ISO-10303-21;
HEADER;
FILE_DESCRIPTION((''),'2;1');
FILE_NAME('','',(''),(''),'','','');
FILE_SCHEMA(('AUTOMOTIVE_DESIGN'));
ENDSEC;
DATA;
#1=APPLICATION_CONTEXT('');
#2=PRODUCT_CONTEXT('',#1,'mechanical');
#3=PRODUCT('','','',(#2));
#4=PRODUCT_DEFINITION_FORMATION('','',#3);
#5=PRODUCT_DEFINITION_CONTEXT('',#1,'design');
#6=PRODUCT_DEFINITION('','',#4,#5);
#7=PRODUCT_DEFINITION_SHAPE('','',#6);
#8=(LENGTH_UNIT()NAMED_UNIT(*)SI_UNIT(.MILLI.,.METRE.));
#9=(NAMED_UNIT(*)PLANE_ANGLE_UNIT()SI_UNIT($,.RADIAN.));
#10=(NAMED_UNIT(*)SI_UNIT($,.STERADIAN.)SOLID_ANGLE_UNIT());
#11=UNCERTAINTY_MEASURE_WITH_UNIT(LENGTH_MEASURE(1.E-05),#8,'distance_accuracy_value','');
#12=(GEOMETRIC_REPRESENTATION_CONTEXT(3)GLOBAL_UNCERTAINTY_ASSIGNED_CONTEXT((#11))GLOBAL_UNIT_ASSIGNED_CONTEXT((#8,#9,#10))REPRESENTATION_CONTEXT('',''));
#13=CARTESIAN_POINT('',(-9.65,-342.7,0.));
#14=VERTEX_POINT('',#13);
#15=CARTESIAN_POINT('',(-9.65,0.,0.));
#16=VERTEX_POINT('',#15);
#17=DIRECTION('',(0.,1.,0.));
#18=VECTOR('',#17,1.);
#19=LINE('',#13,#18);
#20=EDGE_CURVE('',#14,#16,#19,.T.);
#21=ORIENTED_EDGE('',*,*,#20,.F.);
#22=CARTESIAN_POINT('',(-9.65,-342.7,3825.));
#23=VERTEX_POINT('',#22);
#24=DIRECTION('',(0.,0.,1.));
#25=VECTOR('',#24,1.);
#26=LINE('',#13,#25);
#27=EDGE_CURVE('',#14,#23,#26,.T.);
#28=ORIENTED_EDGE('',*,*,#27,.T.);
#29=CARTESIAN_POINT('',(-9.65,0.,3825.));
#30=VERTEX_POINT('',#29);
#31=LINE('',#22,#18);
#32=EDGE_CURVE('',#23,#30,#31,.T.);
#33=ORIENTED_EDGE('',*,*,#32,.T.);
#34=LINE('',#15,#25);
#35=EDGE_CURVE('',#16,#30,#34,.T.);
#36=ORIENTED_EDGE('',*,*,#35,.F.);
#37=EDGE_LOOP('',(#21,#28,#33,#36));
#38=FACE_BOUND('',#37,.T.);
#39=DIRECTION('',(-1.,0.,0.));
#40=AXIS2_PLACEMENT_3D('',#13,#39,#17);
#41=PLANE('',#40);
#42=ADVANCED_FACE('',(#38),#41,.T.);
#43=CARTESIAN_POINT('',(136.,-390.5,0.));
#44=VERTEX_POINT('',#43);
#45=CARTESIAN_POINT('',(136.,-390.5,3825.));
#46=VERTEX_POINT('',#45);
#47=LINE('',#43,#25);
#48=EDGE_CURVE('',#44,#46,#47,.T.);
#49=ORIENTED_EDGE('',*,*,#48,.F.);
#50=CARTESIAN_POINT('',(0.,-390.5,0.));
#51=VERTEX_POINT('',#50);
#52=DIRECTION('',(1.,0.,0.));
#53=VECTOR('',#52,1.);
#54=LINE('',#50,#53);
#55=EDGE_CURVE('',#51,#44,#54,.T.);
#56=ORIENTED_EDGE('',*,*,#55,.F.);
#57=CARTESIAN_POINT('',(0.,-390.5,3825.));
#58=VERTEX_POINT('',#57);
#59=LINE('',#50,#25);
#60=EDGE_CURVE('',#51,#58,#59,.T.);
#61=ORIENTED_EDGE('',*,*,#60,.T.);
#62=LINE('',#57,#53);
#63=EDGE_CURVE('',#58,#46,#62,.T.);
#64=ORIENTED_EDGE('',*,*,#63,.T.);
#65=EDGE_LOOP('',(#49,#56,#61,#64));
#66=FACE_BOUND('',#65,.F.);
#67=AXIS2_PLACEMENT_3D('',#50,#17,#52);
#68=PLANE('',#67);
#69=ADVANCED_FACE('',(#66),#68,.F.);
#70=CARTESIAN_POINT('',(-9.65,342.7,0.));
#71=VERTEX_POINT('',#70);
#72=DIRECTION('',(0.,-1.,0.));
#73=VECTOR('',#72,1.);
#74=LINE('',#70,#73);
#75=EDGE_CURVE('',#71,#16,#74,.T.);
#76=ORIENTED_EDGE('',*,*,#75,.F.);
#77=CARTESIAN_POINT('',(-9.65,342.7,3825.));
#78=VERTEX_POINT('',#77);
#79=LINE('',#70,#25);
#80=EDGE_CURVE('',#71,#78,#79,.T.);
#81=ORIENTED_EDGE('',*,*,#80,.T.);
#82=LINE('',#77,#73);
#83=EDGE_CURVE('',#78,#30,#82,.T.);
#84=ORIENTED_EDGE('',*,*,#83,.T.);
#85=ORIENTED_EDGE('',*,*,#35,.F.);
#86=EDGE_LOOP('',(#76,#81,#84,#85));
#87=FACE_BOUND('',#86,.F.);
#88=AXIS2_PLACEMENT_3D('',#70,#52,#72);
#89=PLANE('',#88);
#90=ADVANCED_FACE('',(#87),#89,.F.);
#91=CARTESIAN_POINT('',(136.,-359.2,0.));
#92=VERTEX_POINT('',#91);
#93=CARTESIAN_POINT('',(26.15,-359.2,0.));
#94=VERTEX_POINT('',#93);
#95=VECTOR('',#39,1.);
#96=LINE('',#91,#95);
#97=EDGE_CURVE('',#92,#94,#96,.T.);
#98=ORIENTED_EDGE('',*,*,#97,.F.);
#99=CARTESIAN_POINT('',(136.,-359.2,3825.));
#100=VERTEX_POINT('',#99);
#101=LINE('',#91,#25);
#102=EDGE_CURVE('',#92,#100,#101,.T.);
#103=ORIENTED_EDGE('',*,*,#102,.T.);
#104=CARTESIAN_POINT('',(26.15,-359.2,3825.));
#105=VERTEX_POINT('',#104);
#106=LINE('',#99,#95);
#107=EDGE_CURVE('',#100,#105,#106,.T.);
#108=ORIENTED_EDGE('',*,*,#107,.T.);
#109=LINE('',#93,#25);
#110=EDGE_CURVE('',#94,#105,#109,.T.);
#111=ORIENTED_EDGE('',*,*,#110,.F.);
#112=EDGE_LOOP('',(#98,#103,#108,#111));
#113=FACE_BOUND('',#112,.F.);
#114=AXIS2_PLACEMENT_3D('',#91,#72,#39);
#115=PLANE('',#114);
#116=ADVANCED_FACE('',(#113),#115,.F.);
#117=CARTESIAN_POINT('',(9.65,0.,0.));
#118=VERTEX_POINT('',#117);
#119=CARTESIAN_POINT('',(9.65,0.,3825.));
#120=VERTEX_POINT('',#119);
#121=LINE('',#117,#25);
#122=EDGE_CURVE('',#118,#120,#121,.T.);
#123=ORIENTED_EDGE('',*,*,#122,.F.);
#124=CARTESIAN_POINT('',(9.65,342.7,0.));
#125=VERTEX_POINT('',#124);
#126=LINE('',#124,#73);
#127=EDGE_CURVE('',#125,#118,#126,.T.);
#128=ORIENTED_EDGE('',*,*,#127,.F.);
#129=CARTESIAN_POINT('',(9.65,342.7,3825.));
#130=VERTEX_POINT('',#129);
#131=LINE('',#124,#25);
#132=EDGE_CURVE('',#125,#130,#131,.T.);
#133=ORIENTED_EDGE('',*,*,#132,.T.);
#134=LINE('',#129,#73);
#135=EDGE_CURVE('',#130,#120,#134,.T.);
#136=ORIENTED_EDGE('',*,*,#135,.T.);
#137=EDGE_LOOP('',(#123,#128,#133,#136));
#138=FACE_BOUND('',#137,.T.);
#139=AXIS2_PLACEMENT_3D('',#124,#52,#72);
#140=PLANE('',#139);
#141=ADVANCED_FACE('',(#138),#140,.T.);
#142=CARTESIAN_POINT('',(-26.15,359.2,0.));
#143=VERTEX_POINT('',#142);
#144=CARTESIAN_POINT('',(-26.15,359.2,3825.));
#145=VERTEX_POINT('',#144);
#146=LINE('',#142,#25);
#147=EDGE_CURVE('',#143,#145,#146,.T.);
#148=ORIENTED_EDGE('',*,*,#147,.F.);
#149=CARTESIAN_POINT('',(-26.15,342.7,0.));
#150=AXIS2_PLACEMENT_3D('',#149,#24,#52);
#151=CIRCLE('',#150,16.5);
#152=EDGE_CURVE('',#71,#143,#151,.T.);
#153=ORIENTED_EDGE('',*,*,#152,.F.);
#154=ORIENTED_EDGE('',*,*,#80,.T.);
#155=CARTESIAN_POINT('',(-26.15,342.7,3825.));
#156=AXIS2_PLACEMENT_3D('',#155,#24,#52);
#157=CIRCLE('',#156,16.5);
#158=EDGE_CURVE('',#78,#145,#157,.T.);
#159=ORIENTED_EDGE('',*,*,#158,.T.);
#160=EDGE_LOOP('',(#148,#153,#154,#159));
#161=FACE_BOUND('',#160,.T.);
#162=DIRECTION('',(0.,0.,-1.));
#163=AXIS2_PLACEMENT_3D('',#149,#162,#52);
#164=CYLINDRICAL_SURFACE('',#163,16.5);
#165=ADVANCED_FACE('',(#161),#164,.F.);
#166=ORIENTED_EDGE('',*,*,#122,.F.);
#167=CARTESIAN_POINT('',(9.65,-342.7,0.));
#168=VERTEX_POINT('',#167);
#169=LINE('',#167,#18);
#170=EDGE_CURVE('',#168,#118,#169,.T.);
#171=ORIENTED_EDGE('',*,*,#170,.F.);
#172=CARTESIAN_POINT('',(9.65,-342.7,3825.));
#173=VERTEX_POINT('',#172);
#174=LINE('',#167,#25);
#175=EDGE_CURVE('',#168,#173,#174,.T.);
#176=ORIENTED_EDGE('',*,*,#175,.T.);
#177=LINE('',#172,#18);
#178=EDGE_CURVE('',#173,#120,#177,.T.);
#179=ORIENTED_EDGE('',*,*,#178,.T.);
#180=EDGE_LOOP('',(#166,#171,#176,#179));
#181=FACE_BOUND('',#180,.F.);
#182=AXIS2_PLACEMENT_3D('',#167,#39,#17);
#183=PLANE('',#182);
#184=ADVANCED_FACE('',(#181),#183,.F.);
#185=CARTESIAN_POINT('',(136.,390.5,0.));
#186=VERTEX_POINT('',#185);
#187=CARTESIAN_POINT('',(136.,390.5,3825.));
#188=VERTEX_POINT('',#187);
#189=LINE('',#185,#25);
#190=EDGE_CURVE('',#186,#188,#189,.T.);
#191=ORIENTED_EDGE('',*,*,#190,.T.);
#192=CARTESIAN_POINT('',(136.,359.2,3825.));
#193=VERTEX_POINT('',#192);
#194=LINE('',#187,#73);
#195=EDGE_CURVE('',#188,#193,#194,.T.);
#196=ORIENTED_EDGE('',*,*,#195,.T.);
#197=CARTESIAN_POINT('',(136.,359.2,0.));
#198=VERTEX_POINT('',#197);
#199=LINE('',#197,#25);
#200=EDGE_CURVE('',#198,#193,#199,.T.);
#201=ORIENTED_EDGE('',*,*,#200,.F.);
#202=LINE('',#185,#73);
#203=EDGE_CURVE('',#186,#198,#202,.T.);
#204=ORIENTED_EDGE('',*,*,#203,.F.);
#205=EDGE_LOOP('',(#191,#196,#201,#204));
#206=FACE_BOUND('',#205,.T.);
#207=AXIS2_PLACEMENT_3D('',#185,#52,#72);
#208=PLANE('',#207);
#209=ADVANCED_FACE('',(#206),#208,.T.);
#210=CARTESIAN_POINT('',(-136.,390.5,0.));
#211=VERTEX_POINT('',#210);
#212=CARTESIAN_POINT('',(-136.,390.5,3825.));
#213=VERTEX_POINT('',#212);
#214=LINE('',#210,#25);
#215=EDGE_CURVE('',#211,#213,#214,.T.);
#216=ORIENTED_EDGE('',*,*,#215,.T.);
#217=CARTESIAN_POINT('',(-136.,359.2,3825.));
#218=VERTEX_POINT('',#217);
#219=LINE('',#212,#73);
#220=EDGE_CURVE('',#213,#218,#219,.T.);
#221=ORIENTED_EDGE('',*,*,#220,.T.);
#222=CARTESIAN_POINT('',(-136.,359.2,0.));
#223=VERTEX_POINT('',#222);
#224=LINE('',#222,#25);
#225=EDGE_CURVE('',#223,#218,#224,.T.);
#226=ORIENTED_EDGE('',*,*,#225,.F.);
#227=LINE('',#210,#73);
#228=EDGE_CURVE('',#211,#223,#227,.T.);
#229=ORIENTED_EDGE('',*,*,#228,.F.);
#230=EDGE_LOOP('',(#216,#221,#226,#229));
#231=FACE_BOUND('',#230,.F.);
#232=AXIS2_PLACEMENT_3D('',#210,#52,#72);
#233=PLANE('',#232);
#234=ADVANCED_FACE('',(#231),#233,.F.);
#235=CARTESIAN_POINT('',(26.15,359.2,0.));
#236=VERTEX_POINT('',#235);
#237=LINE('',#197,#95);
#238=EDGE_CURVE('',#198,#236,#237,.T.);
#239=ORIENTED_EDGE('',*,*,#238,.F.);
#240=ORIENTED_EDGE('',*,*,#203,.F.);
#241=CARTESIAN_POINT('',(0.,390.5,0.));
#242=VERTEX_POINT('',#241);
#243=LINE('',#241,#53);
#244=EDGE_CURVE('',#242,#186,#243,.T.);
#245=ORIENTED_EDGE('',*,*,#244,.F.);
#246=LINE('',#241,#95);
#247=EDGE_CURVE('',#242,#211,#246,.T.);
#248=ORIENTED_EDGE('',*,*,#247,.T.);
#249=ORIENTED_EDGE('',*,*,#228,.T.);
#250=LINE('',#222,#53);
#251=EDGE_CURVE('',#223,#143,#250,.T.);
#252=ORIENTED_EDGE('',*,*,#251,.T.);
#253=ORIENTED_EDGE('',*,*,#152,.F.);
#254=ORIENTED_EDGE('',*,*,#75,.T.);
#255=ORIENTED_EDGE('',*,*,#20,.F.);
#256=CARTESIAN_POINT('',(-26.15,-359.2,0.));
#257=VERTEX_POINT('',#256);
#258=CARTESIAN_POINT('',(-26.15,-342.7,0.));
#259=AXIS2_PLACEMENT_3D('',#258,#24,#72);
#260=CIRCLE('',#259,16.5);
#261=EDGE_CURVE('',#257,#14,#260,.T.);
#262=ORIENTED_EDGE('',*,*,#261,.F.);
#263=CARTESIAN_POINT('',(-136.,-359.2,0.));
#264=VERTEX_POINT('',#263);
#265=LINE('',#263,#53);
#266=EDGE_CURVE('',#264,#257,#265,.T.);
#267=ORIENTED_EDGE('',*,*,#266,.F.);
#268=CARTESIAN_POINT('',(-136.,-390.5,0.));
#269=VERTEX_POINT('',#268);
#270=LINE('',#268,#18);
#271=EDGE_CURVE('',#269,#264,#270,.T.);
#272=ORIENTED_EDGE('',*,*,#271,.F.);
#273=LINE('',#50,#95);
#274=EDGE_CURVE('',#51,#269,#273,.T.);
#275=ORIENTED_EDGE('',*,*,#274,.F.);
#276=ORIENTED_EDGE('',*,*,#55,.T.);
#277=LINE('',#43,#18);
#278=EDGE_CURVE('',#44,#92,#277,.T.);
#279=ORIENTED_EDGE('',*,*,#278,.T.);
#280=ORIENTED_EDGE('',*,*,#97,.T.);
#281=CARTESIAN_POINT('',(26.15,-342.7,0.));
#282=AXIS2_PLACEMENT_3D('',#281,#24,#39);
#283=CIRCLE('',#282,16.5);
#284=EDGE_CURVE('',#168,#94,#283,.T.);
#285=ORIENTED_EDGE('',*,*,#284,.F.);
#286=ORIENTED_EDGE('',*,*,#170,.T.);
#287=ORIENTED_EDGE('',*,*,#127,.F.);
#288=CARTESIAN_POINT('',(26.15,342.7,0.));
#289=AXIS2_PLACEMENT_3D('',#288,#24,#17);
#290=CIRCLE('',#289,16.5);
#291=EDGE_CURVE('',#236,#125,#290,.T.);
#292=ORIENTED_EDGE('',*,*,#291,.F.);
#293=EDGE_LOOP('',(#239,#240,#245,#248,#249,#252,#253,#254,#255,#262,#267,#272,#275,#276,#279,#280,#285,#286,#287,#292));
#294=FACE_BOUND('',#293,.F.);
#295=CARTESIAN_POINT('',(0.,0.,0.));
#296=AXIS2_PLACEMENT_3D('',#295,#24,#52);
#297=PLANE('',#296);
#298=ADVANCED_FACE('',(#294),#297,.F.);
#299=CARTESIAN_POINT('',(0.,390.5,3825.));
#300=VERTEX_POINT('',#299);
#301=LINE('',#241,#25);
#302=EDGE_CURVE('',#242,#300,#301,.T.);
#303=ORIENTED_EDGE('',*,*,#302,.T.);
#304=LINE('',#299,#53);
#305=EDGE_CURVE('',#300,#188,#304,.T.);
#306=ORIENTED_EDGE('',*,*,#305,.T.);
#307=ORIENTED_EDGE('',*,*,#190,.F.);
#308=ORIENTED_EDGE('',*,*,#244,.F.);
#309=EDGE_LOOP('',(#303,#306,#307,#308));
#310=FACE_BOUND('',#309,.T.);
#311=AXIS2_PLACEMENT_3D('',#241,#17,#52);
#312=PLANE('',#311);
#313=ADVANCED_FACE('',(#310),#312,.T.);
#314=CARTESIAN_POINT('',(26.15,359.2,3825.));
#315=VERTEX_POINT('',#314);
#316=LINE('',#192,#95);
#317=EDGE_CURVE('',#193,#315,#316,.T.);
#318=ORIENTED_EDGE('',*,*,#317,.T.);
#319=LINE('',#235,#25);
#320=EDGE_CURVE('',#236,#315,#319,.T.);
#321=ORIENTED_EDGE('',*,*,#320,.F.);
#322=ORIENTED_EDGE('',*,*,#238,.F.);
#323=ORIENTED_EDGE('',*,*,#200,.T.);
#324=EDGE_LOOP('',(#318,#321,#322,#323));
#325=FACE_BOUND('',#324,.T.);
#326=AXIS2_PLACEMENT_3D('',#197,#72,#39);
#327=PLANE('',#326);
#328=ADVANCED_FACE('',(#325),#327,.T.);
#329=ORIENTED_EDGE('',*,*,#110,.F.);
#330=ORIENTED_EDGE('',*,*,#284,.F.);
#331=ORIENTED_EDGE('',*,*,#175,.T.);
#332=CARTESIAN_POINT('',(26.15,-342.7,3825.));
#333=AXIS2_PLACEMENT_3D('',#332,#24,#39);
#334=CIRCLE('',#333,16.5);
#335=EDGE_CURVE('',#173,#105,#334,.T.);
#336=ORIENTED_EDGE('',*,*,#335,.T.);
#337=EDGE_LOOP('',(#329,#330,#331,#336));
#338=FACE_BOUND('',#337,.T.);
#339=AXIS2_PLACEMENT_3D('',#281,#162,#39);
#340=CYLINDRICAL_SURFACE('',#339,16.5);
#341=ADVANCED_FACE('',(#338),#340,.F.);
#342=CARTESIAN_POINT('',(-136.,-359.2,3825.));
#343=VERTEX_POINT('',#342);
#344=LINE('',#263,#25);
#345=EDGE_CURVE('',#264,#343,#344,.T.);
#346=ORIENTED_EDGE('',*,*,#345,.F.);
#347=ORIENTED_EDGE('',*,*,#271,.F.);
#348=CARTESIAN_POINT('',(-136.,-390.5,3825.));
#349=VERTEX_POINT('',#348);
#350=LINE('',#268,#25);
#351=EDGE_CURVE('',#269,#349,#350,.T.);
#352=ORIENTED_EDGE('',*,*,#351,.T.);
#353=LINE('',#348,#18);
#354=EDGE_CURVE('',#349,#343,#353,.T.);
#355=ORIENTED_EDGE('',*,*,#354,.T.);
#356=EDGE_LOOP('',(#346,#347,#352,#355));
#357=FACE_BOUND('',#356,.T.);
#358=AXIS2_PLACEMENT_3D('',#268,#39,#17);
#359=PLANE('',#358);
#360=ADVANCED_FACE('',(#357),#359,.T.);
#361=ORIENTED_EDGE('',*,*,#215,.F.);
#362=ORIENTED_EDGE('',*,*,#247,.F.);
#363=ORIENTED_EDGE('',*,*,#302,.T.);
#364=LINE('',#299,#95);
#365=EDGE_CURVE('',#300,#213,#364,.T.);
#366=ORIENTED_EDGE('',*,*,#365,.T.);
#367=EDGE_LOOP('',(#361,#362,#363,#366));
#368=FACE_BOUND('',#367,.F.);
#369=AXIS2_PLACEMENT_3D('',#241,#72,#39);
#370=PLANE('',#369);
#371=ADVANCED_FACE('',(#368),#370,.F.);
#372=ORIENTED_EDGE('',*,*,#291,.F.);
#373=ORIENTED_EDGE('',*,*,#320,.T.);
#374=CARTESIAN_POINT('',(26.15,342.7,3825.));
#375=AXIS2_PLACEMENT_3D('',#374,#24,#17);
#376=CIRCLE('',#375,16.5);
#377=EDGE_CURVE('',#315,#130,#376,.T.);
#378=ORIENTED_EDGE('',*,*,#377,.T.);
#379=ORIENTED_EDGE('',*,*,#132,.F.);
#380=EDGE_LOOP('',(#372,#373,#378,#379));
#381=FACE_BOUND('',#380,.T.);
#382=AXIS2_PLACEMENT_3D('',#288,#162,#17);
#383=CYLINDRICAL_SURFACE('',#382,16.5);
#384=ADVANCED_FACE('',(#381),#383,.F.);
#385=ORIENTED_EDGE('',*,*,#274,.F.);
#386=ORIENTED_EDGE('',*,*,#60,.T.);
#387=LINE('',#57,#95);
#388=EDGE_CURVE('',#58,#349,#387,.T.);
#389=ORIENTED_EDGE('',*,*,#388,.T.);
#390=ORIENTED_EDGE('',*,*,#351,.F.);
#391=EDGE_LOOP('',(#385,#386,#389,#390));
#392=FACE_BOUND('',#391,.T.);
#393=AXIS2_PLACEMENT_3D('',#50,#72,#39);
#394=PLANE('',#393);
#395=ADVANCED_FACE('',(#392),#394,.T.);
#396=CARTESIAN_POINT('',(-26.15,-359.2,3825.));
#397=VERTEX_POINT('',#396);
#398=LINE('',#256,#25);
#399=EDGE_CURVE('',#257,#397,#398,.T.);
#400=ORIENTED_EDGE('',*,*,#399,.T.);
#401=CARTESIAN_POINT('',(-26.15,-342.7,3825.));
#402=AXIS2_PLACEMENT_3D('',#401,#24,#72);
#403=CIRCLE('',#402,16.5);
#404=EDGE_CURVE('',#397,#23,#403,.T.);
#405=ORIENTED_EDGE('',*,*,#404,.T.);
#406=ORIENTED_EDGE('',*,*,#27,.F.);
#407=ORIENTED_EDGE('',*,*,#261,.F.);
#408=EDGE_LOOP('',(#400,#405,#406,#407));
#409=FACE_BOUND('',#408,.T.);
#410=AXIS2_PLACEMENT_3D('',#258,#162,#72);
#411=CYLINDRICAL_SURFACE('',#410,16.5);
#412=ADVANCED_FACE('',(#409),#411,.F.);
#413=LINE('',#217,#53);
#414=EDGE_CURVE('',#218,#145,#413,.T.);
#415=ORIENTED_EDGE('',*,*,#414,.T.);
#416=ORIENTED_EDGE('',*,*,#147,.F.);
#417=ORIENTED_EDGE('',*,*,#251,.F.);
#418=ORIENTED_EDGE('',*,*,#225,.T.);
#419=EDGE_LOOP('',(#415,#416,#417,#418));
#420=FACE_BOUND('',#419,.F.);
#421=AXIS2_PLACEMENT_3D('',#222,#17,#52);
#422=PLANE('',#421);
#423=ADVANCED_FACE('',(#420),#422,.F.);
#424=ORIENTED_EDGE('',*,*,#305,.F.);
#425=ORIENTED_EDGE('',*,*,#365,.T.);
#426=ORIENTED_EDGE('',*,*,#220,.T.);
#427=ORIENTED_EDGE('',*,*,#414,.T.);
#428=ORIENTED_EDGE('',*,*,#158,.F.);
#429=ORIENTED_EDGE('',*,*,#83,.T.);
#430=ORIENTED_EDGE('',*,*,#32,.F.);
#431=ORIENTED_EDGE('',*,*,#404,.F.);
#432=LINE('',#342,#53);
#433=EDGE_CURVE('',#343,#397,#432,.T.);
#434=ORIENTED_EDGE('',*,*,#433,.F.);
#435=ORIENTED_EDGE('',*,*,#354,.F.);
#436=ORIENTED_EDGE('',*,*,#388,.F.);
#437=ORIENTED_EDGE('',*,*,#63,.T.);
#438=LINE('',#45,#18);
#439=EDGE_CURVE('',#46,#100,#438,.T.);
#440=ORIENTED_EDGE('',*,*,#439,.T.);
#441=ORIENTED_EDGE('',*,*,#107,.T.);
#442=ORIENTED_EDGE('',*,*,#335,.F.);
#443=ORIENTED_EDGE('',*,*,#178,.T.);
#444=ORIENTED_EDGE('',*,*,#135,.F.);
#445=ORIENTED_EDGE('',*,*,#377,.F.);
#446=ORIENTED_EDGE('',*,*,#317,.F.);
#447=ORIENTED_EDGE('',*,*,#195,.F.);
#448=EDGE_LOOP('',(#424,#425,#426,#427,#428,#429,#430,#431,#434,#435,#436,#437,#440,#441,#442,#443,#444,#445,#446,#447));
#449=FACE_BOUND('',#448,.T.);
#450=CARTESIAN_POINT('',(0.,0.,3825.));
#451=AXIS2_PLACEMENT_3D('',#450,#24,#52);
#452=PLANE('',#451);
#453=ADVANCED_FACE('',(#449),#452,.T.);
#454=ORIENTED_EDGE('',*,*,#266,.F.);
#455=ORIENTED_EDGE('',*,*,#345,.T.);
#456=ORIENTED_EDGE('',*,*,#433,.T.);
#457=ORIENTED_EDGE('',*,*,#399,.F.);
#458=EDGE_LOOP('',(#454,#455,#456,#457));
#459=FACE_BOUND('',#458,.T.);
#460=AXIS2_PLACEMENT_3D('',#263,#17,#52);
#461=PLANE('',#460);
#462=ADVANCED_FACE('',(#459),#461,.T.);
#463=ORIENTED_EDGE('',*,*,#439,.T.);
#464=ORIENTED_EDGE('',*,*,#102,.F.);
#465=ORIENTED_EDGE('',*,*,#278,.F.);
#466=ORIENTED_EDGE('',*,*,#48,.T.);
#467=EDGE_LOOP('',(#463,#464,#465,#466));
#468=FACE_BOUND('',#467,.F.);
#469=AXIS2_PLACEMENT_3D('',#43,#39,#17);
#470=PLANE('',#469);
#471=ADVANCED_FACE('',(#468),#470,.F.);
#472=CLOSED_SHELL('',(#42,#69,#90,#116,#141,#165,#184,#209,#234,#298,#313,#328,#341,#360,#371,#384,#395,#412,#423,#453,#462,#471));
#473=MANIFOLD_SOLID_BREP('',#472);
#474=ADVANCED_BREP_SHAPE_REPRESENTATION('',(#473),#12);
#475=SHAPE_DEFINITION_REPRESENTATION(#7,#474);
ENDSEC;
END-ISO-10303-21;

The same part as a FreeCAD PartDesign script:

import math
import FreeCAD as App
import Part
import Sketcher
Q = App.Units.Quantity

doc = App.newDocument("Part")
body = doc.addObject("PartDesign::Body", "Body")

# Sketch on XY plane
sketch1 = body.newObject("Sketcher::SketchObject", "Sketch")
sketch1.AttachmentSupport = (doc.getObject("XY_Plane"), [""])
sketch1.MapMode = "FlatFace"
sketch1.addGeometry(Part.LineSegment(App.Vector(-136, -359, 0), App.Vector(-136, -390, 0)), False)
sketch1.addGeometry(Part.LineSegment(App.Vector(-136, -390, 0), App.Vector(136, -390, 0)), False)
sketch1.addGeometry(Part.LineSegment(App.Vector(136, -390, 0), App.Vector(136, -359, 0)), False)
sketch1.addGeometry(Part.LineSegment(App.Vector(136, -359, 0), App.Vector(26, -359, 0)), False)
sketch1.addGeometry(Part.ArcOfCircle(Part.Circle(App.Vector(26, -343, 0), App.Vector(0, 0, 1), 16), math.radians(180), math.radians(270)), False)
sketch1.addGeometry(Part.LineSegment(App.Vector(10, -343, 0), App.Vector(10, 343, 0)), False)
sketch1.addGeometry(Part.ArcOfCircle(Part.Circle(App.Vector(26, 343, 0), App.Vector(0, 0, 1), 16), math.radians(90), math.radians(180)), False)
sketch1.addGeometry(Part.LineSegment(App.Vector(26, 359, 0), App.Vector(136, 359, 0)), False)
sketch1.addGeometry(Part.LineSegment(App.Vector(136, 359, 0), App.Vector(136, 390, 0)), False)
sketch1.addGeometry(Part.LineSegment(App.Vector(136, 390, 0), App.Vector(-136, 390, 0)), False)
sketch1.addGeometry(Part.LineSegment(App.Vector(-136, 390, 0), App.Vector(-136, 359, 0)), False)
sketch1.addGeometry(Part.LineSegment(App.Vector(-136, 359, 0), App.Vector(-26, 359, 0)), False)
sketch1.addGeometry(Part.ArcOfCircle(Part.Circle(App.Vector(-26, 343, 0), App.Vector(0, 0, 1), 16), math.radians(0), math.radians(90)), False)
sketch1.addGeometry(Part.LineSegment(App.Vector(-10, 343, 0), App.Vector(-10, -343, 0)), False)
sketch1.addGeometry(Part.ArcOfCircle(Part.Circle(App.Vector(-26, -343, 0), App.Vector(0, 0, 1), 16), math.radians(-90), math.radians(0)), False)
sketch1.addGeometry(Part.LineSegment(App.Vector(-26, -359, 0), App.Vector(-136, -359, 0)), False)
sketch1.addConstraint(Sketcher.Constraint("Coincident", 0, 2, 1, 1))
sketch1.addConstraint(Sketcher.Constraint("Coincident", 1, 2, 2, 1))
sketch1.addConstraint(Sketcher.Constraint("Coincident", 2, 2, 3, 1))
sketch1.addConstraint(Sketcher.Constraint("Tangent", 3, 2, 4, 2))
sketch1.addConstraint(Sketcher.Constraint("Tangent", 4, 1, 5, 1))
sketch1.addConstraint(Sketcher.Constraint("Tangent", 5, 2, 6, 2))
sketch1.addConstraint(Sketcher.Constraint("Tangent", 6, 1, 7, 1))
sketch1.addConstraint(Sketcher.Constraint("Coincident", 7, 2, 8, 1))
sketch1.addConstraint(Sketcher.Constraint("Coincident", 8, 2, 9, 1))
sketch1.addConstraint(Sketcher.Constraint("Coincident", 9, 2, 10, 1))
sketch1.addConstraint(Sketcher.Constraint("Coincident", 10, 2, 11, 1))
sketch1.addConstraint(Sketcher.Constraint("Tangent", 11, 2, 12, 2))
sketch1.addConstraint(Sketcher.Constraint("Tangent", 12, 1, 13, 1))
sketch1.addConstraint(Sketcher.Constraint("Tangent", 13, 2, 14, 2))
sketch1.addConstraint(Sketcher.Constraint("Tangent", 14, 1, 15, 1))
sketch1.addConstraint(Sketcher.Constraint("Coincident", 15, 2, 0, 1))
sketch1.addConstraint(Sketcher.Constraint("Vertical", 0))
sketch1.addConstraint(Sketcher.Constraint("Horizontal", 1))
sketch1.addConstraint(Sketcher.Constraint("Vertical", 2))
sketch1.addConstraint(Sketcher.Constraint("Horizontal", 3))
sketch1.addConstraint(Sketcher.Constraint("Vertical", 5))
sketch1.addConstraint(Sketcher.Constraint("Horizontal", 7))
sketch1.addConstraint(Sketcher.Constraint("Vertical", 8))
sketch1.addConstraint(Sketcher.Constraint("Horizontal", 9))
sketch1.addConstraint(Sketcher.Constraint("Vertical", 10))
sketch1.addConstraint(Sketcher.Constraint("Horizontal", 11))
sketch1.addConstraint(Sketcher.Constraint("Vertical", 13))
sketch1.addConstraint(Sketcher.Constraint("Horizontal", 15))
sketch1.addConstraint(Sketcher.Constraint("Equal", 4, 6))
sketch1.addConstraint(Sketcher.Constraint("Equal", 6, 12))
sketch1.addConstraint(Sketcher.Constraint("Equal", 12, 14))
sketch1.addConstraint(Sketcher.Constraint("Symmetric", 4, 3, 12, 3, -1, 1))
sketch1.addConstraint(Sketcher.Constraint("Symmetric", 0, 2, 8, 2, -1, 1))
sketch1.addConstraint(Sketcher.Constraint("Symmetric", 7, 2, 10, 2, -2))
sketch1.addConstraint(Sketcher.Constraint("Symmetric", 2, 2, 15, 2, -2))
sketch1.addConstraint(Sketcher.Constraint("Radius", 4, Q("16.5 mm")))
sketch1.addConstraint(Sketcher.Constraint("DistanceY", 0, 2, 0, 1, Q("31.3 mm")))
sketch1.addConstraint(Sketcher.Constraint("DistanceX", 0, 2, -1, 1, Q("136 mm")))
sketch1.addConstraint(Sketcher.Constraint("DistanceY", 0, 2, -1, 1, Q("390.5 mm")))
sketch1.addConstraint(Sketcher.Constraint("DistanceX", -1, 1, 4, 1, Q("9.65 mm")))
pad1 = body.newObject("PartDesign::Pad", "Pad")
pad1.Profile = sketch1
pad1.Length = 3825

doc.recompute()
